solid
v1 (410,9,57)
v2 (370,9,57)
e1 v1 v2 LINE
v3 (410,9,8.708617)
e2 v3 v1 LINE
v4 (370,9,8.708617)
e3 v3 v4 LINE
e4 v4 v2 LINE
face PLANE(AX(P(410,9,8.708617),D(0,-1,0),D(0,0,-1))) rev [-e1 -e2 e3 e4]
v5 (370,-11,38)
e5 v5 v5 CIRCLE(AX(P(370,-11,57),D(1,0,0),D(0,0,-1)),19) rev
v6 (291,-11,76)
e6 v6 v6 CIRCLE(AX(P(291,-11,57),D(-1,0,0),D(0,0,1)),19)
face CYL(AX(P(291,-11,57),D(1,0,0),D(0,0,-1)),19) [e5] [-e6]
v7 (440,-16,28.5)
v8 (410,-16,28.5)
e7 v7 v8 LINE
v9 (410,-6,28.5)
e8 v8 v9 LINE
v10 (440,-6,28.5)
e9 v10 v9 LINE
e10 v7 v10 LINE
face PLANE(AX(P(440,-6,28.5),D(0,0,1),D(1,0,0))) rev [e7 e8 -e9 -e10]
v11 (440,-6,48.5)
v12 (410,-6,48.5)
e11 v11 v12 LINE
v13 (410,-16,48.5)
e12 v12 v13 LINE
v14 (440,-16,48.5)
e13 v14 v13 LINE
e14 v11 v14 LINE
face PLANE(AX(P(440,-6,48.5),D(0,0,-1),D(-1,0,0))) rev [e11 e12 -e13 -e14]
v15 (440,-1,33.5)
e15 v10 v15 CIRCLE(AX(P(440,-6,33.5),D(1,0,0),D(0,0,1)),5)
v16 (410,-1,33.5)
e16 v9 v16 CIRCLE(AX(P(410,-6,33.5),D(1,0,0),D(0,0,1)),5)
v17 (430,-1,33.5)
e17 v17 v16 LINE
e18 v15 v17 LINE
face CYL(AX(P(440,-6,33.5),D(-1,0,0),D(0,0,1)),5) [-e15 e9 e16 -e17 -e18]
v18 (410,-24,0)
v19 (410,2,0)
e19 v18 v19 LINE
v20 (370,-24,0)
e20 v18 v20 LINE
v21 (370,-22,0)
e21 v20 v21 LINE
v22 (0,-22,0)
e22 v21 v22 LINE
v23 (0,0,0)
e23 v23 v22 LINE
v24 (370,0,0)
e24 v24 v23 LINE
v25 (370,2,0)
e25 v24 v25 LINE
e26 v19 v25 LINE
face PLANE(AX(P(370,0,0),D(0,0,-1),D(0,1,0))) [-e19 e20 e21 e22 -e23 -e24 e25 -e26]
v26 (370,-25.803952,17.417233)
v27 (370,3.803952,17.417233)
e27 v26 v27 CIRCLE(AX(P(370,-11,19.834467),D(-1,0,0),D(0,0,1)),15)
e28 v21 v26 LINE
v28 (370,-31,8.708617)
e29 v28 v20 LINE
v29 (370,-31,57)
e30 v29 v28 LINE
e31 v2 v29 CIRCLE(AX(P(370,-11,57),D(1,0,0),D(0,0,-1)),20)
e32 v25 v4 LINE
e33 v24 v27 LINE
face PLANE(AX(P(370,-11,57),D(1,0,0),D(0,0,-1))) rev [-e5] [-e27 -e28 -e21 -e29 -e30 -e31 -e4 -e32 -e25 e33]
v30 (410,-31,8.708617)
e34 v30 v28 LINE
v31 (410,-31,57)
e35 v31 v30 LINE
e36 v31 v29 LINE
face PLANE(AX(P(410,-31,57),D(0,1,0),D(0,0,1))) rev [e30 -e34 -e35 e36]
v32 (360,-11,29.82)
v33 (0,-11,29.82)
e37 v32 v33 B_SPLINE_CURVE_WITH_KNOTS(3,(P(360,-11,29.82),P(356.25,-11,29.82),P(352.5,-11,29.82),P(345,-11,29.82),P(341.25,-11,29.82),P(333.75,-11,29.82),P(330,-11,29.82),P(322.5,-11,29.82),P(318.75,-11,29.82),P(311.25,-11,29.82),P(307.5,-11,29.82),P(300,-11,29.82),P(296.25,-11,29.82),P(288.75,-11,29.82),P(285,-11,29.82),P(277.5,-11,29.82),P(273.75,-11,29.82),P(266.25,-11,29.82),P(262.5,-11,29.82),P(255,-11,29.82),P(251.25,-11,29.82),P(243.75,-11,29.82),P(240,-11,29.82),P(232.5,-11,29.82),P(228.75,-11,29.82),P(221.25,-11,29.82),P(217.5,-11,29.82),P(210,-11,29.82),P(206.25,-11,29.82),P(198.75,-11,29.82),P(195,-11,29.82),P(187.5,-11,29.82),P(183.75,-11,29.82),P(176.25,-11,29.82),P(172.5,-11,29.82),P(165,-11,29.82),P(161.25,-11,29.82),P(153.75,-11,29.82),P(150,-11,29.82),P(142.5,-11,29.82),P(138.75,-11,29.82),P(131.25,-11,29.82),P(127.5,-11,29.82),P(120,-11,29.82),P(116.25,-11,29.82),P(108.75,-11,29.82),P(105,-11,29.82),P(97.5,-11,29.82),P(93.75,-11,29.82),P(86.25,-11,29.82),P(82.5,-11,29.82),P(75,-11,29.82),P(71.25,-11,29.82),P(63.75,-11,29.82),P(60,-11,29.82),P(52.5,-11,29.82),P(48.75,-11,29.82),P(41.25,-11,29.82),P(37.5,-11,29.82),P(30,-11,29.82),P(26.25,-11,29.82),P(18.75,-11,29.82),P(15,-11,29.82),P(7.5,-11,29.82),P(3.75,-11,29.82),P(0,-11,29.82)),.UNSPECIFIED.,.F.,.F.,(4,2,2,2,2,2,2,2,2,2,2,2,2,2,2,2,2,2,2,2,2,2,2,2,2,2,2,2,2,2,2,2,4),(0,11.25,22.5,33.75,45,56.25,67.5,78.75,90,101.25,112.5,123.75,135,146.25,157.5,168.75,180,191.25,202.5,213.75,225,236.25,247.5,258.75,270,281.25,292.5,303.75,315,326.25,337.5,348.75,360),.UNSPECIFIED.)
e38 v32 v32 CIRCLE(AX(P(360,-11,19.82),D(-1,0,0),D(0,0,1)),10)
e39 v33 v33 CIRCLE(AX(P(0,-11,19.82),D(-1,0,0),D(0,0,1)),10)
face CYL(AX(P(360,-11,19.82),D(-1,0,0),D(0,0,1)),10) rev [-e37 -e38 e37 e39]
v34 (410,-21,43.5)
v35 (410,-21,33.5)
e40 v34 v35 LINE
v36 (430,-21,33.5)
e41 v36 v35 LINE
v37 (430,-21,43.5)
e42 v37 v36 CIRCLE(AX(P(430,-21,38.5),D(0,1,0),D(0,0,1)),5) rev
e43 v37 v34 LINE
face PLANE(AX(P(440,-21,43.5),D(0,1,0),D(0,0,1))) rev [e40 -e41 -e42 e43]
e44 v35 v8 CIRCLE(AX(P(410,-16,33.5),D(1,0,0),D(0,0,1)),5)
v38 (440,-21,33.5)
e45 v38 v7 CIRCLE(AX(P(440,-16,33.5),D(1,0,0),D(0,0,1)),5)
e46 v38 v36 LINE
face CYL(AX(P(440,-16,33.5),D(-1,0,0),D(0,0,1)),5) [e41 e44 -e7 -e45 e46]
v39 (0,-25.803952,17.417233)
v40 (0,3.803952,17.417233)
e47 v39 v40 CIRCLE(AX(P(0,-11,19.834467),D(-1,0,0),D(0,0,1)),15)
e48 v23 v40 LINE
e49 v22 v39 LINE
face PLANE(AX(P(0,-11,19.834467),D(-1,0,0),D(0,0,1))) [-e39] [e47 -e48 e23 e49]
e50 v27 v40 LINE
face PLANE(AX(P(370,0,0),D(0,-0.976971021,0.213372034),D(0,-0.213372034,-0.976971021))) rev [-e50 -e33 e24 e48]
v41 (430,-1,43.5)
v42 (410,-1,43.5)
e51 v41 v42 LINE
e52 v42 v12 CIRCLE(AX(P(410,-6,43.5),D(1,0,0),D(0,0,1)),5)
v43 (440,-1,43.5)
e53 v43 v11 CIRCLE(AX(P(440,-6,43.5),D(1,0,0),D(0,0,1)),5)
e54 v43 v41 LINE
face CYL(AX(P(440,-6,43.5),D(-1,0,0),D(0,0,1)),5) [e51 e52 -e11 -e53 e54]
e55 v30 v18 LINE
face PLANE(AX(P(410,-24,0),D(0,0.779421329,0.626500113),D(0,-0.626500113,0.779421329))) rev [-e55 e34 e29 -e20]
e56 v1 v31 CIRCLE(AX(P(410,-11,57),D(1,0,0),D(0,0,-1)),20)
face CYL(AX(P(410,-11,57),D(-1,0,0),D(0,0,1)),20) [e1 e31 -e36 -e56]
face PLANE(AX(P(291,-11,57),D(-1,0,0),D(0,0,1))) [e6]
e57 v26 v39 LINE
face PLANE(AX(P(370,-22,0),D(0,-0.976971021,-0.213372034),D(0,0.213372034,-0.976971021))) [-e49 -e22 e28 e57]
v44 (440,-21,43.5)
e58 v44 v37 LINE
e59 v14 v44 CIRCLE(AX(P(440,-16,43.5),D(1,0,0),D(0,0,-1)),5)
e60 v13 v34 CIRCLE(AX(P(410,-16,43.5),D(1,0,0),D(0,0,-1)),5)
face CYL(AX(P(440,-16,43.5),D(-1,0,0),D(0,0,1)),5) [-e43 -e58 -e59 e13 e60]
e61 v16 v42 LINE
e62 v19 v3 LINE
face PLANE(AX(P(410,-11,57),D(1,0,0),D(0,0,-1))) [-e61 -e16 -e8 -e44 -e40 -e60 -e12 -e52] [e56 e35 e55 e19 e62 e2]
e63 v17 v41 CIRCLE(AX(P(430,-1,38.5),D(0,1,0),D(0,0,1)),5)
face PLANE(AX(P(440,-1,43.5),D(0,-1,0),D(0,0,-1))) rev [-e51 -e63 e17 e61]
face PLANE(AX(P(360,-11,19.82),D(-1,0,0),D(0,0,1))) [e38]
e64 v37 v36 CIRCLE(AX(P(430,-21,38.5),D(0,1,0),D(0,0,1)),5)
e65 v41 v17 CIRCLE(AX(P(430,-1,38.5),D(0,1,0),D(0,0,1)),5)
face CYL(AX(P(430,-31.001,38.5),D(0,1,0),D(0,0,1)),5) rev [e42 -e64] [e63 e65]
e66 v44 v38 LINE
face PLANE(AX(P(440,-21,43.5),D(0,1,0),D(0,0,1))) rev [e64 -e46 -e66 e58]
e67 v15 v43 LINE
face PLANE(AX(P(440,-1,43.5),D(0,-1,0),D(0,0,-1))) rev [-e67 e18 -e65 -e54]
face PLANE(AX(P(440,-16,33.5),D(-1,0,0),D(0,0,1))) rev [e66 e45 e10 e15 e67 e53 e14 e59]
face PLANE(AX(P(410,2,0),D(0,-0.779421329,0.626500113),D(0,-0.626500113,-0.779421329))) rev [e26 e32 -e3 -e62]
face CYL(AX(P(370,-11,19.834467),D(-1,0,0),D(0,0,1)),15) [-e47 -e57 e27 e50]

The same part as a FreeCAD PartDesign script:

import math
import FreeCAD as App
import Part
import Sketcher
from FreeCAD import Vector

doc = App.newDocument("Part")
body = doc.addObject("PartDesign::Body", "Body")

# Sketch on YZ plane
sketch1 = body.newObject("Sketcher::SketchObject", "Sketch")
sketch1.AttachmentSupport = (doc.getObject("YZ_Plane"), [""])
sketch1.MapMode = "FlatFace"
sketch1.addGeometry(Part.LineSegment(Vector(-22, 0, 0), Vector(0, 0, 0)), False)
sketch1.addGeometry(Part.LineSegment(Vector(0, 0, 0), Vector(4, 17, 0)), False)
sketch1.addGeometry(Part.ArcOfCircle(Part.Circle(Vector(-11, 20, 0), Vector(0, 0, 1), 15), math.radians(-9), math.radians(189)), False)
sketch1.addGeometry(Part.LineSegment(Vector(-26, 17, 0), Vector(-22, 0, 0)), False)
sketch1.addConstraint(Sketcher.Constraint("Coincident", 0, 2, 1, 1))
sketch1.addConstraint(Sketcher.Constraint("Coincident", 1, 2, 2, 1))
sketch1.addConstraint(Sketcher.Constraint("Coincident", 2, 2, 3, 1))
sketch1.addConstraint(Sketcher.Constraint("Coincident", 3, 2, 0, 1))
sketch1.addConstraint(Sketcher.Constraint("Horizontal", 0))
sketch1.addConstraint(Sketcher.Constraint("Coincident", 0, 2, -1, 1))
sketch1.addConstraint(Sketcher.Constraint("Horizontal", 1, 2, 2, 2))
sketch1.addConstraint(Sketcher.Constraint("Equal", 1, 3))
sketch1.addConstraint(Sketcher.Constraint("Radius", 2, 15.0))
sketch1.addConstraint(Sketcher.Constraint("DistanceX", 0, 1, 0, 2, 22.0))
sketch1.addConstraint(Sketcher.Constraint("Distance", 1, 17.827789))
sketch1.addConstraint(Sketcher.Constraint("DistanceX", -1, 1, 1, 2, 3.803952))
pad1 = body.newObject("PartDesign::Pad", "Pad")
pad1.Profile = sketch1
pad1.Length = 370

# Sketch on YZ plane
sketch2 = body.newObject("Sketcher::SketchObject", "Sketch001")
sketch2.AttachmentSupport = (doc.getObject("YZ_Plane"), [""])
sketch2.MapMode = "FlatFace"
sketch2.addGeometry(Part.Circle(Vector(-11, 20, 0), Vector(0, 0, 1), 10), False)
sketch2.addConstraint(Sketcher.Constraint("Diameter", 0, 20.0))
sketch2.addConstraint(Sketcher.Constraint("DistanceX", 0, 3, -1, 1, 11.0))
sketch2.addConstraint(Sketcher.Constraint("DistanceY", -1, 1, 0, 3, 19.82))
pocket1 = body.newObject("PartDesign::Pocket", "Pocket")
pocket1.Profile = sketch2
pocket1.Length = 360
pocket1.Reversed = True

# Sketch on YZ plane
sketch3 = body.newObject("Sketcher::SketchObject", "Sketch002")
sketch3.AttachmentSupport = (doc.getObject("YZ_Plane"), [""])
sketch3.MapMode = "FlatFace"
sketch3.AttachmentOffset = App.Placement(Vector(0, 0, 370), App.Rotation())
sketch3.addGeometry(Part.LineSegment(Vector(2, 0, 0), Vector(9, 9, 0)), False)
sketch3.addGeometry(Part.LineSegment(Vector(9, 9, 0), Vector(9, 57, 0)), False)
sketch3.addGeometry(Part.ArcOfCircle(Part.Circle(Vector(-11, 57, 0), Vector(0, 0, 1), 20), math.radians(0), math.radians(180)), False)
sketch3.addGeometry(Part.LineSegment(Vector(-31, 57, 0), Vector(-31, 9, 0)), False)
sketch3.addGeometry(Part.LineSegment(Vector(-31, 9, 0), Vector(-24, 0, 0)), False)
sketch3.addGeometry(Part.LineSegment(Vector(-24, 0, 0), Vector(2, 0, 0)), False)
sketch3.addConstraint(Sketcher.Constraint("Coincident", 0, 2, 1, 1))
sketch3.addConstraint(Sketcher.Constraint("Tangent", 1, 2, 2, 1))
sketch3.addConstraint(Sketcher.Constraint("Tangent", 2, 2, 3, 1))
sketch3.addConstraint(Sketcher.Constraint("Coincident", 3, 2, 4, 1))
sketch3.addConstraint(Sketcher.Constraint("Coincident", 4, 2, 5, 1))
sketch3.addConstraint(Sketcher.Constraint("Coincident", 5, 2, 0, 1))
sketch3.addConstraint(Sketcher.Constraint("Vertical", 1))
sketch3.addConstraint(Sketcher.Constraint("Vertical", 3))
sketch3.addConstraint(Sketcher.Constraint("Horizontal", 5))
sketch3.addConstraint(Sketcher.Constraint("PointOnObject", 4, 2, -1))
sketch3.addConstraint(Sketcher.Constraint("Horizontal", 0, 2, 3, 2))
sketch3.addConstraint(Sketcher.Constraint("Equal", 0, 4))
sketch3.addConstraint(Sketcher.Constraint("Radius", 2, 20.0))
sketch3.addConstraint(Sketcher.Constraint("DistanceX", 5, 1, 5, 2, 26.0))
sketch3.addConstraint(Sketcher.Constraint("DistanceX", 2, 3, -1, 1, 11.0))
sketch3.addConstraint(Sketcher.Constraint("DistanceY", -1, 1, 2, 3, 57.0))
sketch3.addConstraint(Sketcher.Constraint("DistanceY", 1, 1, 1, 2, 48.291383))
pad2 = body.newObject("PartDesign::Pad", "Pad001")
pad2.Profile = sketch3
pad2.Length = 40

# Sketch on YZ plane
sketch4 = body.newObject("Sketcher::SketchObject", "Sketch003")
sketch4.AttachmentSupport = (doc.getObject("YZ_Plane"), [""])
sketch4.MapMode = "FlatFace"
sketch4.AttachmentOffset = App.Placement(Vector(0, 0, 410), App.Rotation())
sketch4.addGeometry(Part.LineSegment(Vector(-1, 34, 0), Vector(-1, 44, 0)), False)
sketch4.addGeometry(Part.ArcOfCircle(Part.Circle(Vector(-6, 44, 0), Vector(0, 0, 1), 5), math.radians(0), math.radians(90)), False)
sketch4.addGeometry(Part.LineSegment(Vector(-6, 48, 0), Vector(-16, 48, 0)), False)
sketch4.addGeometry(Part.ArcOfCircle(Part.Circle(Vector(-16, 44, 0), Vector(0, 0, 1), 5), math.radians(90), math.radians(180)), False)
sketch4.addGeometry(Part.LineSegment(Vector(-21, 44, 0), Vector(-21, 34, 0)), False)
sketch4.addGeometry(Part.ArcOfCircle(Part.Circle(Vector(-16, 34, 0), Vector(0, 0, 1), 5), math.radians(180), math.radians(270)), False)
sketch4.addGeometry(Part.LineSegment(Vector(-16, 28, 0), Vector(-6, 28, 0)), False)
sketch4.addGeometry(Part.ArcOfCircle(Part.Circle(Vector(-6, 34, 0), Vector(0, 0, 1), 5), math.radians(-90), math.radians(0)), False)
sketch4.addConstraint(Sketcher.Constraint("Tangent", 0, 2, 1, 1))
sketch4.addConstraint(Sketcher.Constraint("Tangent", 1, 2, 2, 1))
sketch4.addConstraint(Sketcher.Constraint("Tangent", 2, 2, 3, 1))
sketch4.addConstraint(Sketcher.Constraint("Tangent", 3, 2, 4, 1))
sketch4.addConstraint(Sketcher.Constraint("Tangent", 4, 2, 5, 1))
sketch4.addConstraint(Sketcher.Constraint("Tangent", 5, 2, 6, 1))
sketch4.addConstraint(Sketcher.Constraint("Tangent", 6, 2, 7, 1))
sketch4.addConstraint(Sketcher.Constraint("Tangent", 7, 2, 0, 1))
sketch4.addConstraint(Sketcher.Constraint("Vertical", 0))
sketch4.addConstraint(Sketcher.Constraint("Horizontal", 2))
sketch4.addConstraint(Sketcher.Constraint("Vertical", 4))
sketch4.addConstraint(Sketcher.Constraint("Horizontal", 6))
sketch4.addConstraint(Sketcher.Constraint("Equal", 1, 3))
sketch4.addConstraint(Sketcher.Constraint("Equal", 3, 5))
sketch4.addConstraint(Sketcher.Constraint("Equal", 5, 7))
sketch4.addConstraint(Sketcher.Constraint("Equal", 6, 0))
sketch4.addConstraint(Sketcher.Constraint("Radius", 1, 5.0))
sketch4.addConstraint(Sketcher.Constraint("DistanceX", 2, 2, 2, 1, 10.0))
sketch4.addConstraint(Sketcher.Constraint("DistanceX", 1, 3, -1, 1, 6.0))
sketch4.addConstraint(Sketcher.Constraint("DistanceY", -1, 1, 1, 3, 43.5))
pad3 = body.newObject("PartDesign::Pad", "Pad002")
pad3.Profile = sketch4
pad3.Length = 30

# Sketch on XZ plane
sketch5 = body.newObject("Sketcher::SketchObject", "Sketch004")
sketch5.AttachmentSupport = (doc.getObject("XZ_Plane"), [""])
sketch5.MapMode = "FlatFace"
sketch5.AttachmentOffset = App.Placement(Vector(0, 0, 1), App.Rotation())
sketch5.addGeometry(Part.Circle(Vector(430, 38, 0), Vector(0, 0, 1), 5), False)
sketch5.addConstraint(Sketcher.Constraint("Diameter", 0, 10.0))
sketch5.addConstraint(Sketcher.Constraint("DistanceX", -1, 1, 0, 3, 430.0))
sketch5.addConstraint(Sketcher.Constraint("DistanceY", -1, 1, 0, 3, 38.5))
pocket2 = body.newObject("PartDesign::Pocket", "Pocket001")
pocket2.Profile = sketch5
pocket2.Type = "UpToFirst"
pocket2.Reversed = True

# Sketch on YZ plane
sketch6 = body.newObject("Sketcher::SketchObject", "Sketch005")
sketch6.AttachmentSupport = (doc.getObject("YZ_Plane"), [""])
sketch6.MapMode = "FlatFace"
sketch6.AttachmentOffset = App.Placement(Vector(0, 0, 370), App.Rotation())
sketch6.addGeometry(Part.Circle(Vector(-11, 57, 0), Vector(0, 0, 1), 19), False)
sketch6.addConstraint(Sketcher.Constraint("Diameter", 0, 38.0))
sketch6.addConstraint(Sketcher.Constraint("DistanceX", 0, 3, -1, 1, 11.0))
sketch6.addConstraint(Sketcher.Constraint("DistanceY", -1, 1, 0, 3, 57.0))
pad4 = body.newObject("PartDesign::Pad", "Pad003")
pad4.Profile = sketch6
pad4.Length = 79
pad4.Reversed = True

doc.recompute()
